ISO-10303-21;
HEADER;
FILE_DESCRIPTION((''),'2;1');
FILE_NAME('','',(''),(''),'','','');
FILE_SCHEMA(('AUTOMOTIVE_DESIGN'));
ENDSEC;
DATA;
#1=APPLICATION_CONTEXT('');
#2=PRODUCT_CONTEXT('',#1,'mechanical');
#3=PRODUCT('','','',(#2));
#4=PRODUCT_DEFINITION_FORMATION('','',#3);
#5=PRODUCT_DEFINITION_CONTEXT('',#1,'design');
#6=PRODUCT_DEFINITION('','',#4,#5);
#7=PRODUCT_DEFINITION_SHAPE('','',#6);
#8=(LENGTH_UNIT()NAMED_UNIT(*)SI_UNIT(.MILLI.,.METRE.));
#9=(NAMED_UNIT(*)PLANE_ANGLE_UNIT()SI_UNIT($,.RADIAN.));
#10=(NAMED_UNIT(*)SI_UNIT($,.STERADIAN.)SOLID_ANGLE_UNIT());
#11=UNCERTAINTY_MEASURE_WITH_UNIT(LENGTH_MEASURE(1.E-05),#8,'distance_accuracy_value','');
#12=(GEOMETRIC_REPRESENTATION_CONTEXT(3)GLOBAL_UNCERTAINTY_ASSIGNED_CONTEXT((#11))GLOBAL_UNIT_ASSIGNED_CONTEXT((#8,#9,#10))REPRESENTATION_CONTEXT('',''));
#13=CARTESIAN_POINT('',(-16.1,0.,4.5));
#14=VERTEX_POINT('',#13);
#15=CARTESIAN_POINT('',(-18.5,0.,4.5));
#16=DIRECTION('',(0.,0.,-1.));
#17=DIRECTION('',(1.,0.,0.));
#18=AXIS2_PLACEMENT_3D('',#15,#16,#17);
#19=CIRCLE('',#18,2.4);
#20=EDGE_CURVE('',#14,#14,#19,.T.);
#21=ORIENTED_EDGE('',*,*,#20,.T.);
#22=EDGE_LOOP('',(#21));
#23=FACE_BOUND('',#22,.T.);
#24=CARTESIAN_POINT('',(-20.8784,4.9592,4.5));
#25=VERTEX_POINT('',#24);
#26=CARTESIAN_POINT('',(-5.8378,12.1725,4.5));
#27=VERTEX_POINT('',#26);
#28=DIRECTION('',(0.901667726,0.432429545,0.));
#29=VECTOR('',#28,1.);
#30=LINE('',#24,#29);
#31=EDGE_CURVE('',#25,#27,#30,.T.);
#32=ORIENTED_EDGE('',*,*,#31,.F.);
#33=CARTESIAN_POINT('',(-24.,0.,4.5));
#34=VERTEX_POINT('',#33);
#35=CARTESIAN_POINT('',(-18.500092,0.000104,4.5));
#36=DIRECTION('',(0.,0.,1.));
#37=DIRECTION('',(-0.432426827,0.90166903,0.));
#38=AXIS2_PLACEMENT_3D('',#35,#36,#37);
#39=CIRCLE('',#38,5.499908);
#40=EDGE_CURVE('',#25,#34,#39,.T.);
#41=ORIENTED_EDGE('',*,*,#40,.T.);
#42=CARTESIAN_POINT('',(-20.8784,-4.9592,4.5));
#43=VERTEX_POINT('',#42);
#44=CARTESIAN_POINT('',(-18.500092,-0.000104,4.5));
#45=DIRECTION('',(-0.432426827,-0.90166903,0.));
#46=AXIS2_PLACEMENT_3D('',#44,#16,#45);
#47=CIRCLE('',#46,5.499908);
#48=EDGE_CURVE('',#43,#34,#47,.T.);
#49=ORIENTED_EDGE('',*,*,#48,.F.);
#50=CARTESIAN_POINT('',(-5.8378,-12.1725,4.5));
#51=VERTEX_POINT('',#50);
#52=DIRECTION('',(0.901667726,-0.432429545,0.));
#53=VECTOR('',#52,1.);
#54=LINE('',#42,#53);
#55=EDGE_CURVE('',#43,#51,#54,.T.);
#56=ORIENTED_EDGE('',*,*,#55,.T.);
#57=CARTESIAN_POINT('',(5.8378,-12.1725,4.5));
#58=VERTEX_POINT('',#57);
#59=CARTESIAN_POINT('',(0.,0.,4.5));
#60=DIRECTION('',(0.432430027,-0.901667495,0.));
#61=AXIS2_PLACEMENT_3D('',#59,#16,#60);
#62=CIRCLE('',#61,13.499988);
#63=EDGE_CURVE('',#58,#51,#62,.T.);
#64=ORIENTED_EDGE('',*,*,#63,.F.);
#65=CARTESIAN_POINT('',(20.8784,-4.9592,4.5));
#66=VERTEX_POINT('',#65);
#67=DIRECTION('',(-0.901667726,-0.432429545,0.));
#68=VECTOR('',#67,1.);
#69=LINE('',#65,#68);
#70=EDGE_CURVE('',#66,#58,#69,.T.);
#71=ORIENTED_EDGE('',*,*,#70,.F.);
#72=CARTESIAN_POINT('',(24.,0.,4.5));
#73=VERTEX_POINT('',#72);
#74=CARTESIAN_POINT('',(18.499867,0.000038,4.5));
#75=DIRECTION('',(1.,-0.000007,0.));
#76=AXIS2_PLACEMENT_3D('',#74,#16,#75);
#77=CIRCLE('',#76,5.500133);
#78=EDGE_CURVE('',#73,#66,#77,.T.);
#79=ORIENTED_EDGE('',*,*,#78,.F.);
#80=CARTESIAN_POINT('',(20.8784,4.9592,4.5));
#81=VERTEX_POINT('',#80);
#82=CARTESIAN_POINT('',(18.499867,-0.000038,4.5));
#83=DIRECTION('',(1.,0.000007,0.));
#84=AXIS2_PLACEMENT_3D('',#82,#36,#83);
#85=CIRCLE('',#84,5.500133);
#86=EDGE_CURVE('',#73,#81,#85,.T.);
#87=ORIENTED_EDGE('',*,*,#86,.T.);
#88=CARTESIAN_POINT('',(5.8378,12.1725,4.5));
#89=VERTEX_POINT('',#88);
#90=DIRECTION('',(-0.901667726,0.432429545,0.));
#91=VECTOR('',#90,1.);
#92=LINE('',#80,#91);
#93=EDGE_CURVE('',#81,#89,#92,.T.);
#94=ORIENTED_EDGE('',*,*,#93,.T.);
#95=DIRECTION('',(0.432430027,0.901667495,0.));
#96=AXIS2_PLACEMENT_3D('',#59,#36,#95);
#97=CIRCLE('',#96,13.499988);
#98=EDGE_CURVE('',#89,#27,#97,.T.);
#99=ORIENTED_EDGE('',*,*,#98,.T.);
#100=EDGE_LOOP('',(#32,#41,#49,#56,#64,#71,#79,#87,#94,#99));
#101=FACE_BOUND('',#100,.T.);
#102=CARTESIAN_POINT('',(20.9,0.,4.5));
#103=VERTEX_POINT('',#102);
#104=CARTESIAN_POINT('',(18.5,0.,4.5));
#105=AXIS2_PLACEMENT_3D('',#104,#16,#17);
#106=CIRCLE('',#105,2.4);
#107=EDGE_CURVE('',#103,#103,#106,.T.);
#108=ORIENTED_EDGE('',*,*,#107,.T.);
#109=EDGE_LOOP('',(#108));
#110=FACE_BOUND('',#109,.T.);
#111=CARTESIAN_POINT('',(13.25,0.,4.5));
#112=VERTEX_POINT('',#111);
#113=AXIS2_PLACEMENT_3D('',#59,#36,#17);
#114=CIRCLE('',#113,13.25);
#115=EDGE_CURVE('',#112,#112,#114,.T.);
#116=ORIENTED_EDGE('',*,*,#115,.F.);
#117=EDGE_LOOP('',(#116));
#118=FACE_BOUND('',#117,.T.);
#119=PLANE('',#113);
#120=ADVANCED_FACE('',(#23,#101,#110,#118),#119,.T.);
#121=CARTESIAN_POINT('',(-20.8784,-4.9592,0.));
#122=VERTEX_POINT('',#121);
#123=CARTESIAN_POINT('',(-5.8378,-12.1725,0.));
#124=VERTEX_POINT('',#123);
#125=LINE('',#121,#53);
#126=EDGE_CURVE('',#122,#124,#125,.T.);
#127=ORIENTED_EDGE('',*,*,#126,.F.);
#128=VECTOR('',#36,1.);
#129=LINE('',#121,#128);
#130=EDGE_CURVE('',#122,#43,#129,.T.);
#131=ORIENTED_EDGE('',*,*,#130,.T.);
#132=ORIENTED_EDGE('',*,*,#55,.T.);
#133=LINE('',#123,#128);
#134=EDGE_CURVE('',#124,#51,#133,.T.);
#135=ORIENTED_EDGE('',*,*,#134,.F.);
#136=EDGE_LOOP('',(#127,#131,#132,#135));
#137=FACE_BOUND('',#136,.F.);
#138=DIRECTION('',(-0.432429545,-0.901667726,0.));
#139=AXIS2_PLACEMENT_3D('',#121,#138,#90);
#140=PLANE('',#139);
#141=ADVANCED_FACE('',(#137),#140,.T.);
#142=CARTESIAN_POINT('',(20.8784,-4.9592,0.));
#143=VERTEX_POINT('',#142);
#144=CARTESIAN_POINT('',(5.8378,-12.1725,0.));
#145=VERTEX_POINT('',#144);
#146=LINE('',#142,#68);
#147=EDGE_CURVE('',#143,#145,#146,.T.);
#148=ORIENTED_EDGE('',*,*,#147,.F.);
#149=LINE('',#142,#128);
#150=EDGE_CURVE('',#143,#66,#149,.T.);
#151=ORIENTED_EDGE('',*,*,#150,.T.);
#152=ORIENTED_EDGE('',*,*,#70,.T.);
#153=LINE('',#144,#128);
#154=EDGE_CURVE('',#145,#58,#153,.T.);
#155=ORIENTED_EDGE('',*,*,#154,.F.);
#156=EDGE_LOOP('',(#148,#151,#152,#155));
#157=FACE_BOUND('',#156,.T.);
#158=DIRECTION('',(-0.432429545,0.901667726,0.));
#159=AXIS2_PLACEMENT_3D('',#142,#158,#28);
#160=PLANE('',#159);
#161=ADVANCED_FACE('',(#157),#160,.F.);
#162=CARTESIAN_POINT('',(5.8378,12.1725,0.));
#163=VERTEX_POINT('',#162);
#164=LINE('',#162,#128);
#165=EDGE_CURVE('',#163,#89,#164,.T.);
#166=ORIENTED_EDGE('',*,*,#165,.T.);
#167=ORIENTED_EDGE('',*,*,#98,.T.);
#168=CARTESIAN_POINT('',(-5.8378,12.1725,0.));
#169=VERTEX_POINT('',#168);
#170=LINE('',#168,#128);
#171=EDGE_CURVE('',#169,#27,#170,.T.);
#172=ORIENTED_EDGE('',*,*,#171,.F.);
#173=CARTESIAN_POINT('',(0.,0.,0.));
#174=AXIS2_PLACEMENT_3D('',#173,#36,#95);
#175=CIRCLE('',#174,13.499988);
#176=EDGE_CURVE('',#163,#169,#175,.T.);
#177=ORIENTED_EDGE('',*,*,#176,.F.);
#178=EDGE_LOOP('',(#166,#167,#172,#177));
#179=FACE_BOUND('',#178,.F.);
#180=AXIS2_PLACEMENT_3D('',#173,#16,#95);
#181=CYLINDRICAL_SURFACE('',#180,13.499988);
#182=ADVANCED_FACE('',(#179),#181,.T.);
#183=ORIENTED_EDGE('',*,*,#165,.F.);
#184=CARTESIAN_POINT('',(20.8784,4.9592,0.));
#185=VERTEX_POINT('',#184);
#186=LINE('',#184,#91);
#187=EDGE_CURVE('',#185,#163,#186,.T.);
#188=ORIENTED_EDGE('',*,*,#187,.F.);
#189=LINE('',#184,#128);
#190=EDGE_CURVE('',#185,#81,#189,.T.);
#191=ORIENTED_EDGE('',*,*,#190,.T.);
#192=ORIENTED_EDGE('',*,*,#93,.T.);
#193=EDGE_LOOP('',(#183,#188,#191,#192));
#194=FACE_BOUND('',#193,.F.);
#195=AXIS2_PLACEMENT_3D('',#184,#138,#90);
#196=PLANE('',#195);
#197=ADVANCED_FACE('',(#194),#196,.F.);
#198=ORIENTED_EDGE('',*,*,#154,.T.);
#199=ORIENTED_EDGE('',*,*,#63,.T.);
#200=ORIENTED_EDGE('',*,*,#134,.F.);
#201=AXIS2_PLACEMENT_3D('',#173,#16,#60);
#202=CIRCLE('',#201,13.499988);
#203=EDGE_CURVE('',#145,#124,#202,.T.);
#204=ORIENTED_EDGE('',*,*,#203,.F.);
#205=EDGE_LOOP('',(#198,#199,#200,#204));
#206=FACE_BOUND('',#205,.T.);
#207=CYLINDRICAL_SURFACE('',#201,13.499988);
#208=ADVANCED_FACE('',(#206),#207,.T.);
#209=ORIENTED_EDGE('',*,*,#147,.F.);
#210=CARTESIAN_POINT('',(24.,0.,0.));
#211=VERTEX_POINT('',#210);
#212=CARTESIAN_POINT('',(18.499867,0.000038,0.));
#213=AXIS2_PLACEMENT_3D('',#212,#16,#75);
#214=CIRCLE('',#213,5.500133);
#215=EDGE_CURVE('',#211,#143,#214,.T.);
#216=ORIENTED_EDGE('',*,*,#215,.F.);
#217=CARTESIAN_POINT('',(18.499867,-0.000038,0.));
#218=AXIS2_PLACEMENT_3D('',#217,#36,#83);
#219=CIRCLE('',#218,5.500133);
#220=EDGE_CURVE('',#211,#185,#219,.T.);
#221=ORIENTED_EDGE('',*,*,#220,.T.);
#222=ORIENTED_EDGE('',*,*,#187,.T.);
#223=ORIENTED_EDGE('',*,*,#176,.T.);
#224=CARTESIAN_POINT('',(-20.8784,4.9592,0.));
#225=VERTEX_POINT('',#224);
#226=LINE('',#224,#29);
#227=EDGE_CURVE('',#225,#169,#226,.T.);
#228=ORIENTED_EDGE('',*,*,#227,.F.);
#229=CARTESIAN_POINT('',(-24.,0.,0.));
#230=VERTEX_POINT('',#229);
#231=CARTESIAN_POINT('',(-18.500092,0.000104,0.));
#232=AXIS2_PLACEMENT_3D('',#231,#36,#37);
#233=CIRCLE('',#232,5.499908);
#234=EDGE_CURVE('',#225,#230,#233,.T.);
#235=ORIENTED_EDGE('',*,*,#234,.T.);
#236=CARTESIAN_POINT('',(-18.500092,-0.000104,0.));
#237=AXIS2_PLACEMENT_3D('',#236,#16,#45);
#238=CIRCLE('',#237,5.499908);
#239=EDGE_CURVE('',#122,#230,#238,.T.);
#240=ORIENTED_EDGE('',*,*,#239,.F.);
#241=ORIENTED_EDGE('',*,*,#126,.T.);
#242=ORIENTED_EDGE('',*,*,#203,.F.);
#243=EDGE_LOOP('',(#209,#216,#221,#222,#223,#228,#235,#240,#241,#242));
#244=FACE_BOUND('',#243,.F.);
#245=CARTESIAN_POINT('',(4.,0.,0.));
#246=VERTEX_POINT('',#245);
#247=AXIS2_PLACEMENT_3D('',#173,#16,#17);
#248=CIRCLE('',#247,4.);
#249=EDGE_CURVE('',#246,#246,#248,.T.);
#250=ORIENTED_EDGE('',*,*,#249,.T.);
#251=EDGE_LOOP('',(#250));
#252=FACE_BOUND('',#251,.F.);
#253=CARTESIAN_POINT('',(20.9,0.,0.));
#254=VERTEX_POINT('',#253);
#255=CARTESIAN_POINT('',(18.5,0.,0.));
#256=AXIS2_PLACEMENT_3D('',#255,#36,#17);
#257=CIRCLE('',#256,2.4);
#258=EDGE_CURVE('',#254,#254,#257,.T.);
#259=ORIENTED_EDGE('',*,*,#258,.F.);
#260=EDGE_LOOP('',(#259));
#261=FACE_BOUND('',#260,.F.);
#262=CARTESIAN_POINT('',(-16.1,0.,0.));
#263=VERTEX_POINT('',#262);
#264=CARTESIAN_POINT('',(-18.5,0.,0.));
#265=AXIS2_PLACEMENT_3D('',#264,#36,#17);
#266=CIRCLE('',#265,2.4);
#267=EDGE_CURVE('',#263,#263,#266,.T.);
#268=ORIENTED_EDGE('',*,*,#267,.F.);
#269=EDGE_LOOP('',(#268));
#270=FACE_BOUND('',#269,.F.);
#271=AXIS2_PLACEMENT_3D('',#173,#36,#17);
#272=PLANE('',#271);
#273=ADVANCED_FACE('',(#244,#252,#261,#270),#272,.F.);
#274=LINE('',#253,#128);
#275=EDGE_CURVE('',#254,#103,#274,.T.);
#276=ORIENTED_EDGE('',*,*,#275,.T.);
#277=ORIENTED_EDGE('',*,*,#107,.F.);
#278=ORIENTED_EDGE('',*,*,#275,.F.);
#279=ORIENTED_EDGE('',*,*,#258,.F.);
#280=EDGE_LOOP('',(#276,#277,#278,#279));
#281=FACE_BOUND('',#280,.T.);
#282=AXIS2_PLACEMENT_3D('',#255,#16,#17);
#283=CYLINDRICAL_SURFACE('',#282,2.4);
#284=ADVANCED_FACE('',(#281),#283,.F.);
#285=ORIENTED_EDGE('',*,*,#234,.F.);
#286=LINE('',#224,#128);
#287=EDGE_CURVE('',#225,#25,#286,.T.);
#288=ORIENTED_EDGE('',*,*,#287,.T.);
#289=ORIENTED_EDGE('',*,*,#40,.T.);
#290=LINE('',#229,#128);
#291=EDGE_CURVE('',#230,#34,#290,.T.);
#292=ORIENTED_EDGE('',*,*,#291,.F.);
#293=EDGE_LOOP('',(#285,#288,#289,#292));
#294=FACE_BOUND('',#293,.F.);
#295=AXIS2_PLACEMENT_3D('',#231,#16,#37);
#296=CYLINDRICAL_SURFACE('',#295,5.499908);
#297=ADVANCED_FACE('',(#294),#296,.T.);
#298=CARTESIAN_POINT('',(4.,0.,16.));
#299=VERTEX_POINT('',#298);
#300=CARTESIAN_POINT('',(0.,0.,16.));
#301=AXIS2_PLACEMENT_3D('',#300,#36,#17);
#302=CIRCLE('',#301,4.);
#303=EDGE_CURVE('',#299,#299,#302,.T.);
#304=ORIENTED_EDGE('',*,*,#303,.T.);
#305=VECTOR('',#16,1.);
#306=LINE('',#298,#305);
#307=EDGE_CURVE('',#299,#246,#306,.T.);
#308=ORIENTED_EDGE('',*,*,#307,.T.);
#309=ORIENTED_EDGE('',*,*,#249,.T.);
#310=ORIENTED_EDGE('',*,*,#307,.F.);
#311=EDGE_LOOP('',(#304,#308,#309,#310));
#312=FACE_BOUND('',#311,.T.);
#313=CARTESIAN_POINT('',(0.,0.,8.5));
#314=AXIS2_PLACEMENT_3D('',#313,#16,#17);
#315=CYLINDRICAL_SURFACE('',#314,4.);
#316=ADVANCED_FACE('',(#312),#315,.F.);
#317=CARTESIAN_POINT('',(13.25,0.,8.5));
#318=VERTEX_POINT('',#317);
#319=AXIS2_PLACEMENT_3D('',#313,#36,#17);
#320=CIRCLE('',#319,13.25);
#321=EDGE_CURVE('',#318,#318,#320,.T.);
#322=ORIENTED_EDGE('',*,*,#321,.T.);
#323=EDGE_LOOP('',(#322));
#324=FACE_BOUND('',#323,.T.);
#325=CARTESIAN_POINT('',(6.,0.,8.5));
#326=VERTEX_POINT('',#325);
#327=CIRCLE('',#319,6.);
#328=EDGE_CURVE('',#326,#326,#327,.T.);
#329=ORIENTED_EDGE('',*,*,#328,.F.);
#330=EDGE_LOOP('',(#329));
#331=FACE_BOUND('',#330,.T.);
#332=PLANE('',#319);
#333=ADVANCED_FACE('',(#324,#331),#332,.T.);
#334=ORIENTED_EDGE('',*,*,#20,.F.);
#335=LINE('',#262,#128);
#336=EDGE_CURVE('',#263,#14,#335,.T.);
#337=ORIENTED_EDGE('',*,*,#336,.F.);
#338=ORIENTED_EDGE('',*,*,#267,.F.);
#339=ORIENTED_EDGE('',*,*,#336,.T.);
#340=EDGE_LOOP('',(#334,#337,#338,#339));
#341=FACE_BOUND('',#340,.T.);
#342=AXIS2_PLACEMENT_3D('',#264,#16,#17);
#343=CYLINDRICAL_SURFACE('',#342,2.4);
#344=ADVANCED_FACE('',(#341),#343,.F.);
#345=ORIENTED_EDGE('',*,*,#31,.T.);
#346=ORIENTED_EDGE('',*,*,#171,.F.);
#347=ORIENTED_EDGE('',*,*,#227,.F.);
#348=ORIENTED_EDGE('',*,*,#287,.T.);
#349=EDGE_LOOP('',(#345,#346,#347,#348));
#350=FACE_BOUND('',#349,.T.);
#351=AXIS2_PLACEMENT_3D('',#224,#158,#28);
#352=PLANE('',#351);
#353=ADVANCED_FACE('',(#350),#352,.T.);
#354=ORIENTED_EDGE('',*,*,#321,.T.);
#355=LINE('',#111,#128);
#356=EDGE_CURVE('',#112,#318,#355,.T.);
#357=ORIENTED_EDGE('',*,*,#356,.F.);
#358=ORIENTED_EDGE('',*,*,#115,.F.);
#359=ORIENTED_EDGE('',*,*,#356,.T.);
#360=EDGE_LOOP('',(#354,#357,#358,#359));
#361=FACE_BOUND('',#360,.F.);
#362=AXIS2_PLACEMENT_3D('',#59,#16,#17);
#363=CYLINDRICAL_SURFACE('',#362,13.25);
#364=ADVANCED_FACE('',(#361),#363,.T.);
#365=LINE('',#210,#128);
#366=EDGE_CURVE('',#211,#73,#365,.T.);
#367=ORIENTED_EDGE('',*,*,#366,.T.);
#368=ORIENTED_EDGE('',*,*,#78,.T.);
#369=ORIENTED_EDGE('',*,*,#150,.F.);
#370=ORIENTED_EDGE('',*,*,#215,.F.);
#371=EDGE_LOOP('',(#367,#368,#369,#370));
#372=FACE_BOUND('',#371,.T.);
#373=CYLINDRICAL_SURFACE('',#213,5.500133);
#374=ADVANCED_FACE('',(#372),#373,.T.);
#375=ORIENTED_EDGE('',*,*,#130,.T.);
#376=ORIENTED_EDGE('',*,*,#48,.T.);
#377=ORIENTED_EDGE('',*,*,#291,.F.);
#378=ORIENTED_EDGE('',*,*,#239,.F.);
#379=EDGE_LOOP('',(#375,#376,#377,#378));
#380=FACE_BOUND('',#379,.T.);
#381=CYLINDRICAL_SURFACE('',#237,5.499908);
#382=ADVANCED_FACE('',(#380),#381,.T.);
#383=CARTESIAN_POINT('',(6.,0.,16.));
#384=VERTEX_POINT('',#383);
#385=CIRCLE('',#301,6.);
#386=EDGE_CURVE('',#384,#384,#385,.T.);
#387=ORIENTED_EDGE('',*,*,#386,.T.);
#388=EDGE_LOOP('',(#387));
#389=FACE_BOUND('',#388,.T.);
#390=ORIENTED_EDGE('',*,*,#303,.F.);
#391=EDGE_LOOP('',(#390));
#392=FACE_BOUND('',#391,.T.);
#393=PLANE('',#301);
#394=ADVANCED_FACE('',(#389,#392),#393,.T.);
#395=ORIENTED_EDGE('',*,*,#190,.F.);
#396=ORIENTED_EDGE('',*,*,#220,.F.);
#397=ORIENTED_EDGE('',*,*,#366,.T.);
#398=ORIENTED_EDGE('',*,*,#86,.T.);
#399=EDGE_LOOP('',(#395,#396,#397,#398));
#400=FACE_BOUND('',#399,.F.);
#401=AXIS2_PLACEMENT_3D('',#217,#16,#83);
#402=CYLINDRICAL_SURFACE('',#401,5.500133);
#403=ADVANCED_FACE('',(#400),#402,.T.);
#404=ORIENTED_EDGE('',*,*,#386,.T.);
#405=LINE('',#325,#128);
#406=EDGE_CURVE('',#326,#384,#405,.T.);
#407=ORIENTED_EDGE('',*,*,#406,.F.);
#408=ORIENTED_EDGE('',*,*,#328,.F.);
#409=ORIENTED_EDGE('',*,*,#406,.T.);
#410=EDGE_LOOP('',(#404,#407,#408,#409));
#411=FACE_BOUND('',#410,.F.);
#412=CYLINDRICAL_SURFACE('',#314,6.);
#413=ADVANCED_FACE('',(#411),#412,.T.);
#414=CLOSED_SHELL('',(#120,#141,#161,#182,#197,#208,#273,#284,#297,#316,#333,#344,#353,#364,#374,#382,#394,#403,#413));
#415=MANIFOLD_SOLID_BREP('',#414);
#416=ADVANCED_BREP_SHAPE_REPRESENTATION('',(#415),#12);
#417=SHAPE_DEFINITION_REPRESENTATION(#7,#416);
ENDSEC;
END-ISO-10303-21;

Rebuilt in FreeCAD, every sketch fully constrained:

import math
import FreeCAD as App
import Part
import Sketcher

doc = App.newDocument("Part")
body = doc.addObject("PartDesign::Body", "Body")

# Sketch on XY plane
sketch1 = body.newObject("Sketcher::SketchObject", "Sketch")
sketch1.AttachmentSupport = (doc.getObject("XY_Plane"), [""])
sketch1.MapMode = "FlatFace"
sketch1.addGeometry(Part.ArcOfCircle(Part.Circle(App.Vector(0, 0, 0), App.Vector(0, 0, 1), 4), math.radians(0), math.radians(180)), False)
sketch1.addGeometry(Part.LineSegment(App.Vector(4, 0, 0), App.Vector(16.1, 0, 0)), False)
sketch1.addGeometry(Part.ArcOfCircle(Part.Circle(App.Vector(18.5, 0, 0), App.Vector(0, 0, 1), 2.4), math.radians(0), math.radians(180)), False)
sketch1.addGeometry(Part.LineSegment(App.Vector(20.9, 0, 0), App.Vector(24, 0, 0)), False)
sketch1.addGeometry(Part.ArcOfCircle(Part.Circle(App.Vector(18.5, 0, 0), App.Vector(0, 0, 1), 5.5), math.radians(0), math.radians(64)), False)
sketch1.addGeometry(Part.LineSegment(App.Vector(20.9, 5, 0), App.Vector(5.8, 12.2, 0)), False)
sketch1.addGeometry(Part.ArcOfCircle(Part.Circle(App.Vector(0, 0, 0), App.Vector(0, 0, 1), 13.5), math.radians(64), math.radians(116)), False)
sketch1.addGeometry(Part.LineSegment(App.Vector(-5.8, 12.2, 0), App.Vector(-20.9, 5, 0)), False)
sketch1.addGeometry(Part.ArcOfCircle(Part.Circle(App.Vector(-18.5, 0, 0), App.Vector(0, 0, 1), 5.5), math.radians(116), math.radians(180)), False)
sketch1.addGeometry(Part.LineSegment(App.Vector(-24, 0, 0), App.Vector(-20.9, 0, 0)), False)
sketch1.addGeometry(Part.ArcOfCircle(Part.Circle(App.Vector(-18.5, 0, 0), App.Vector(0, 0, 1), 2.4), math.radians(0), math.radians(180)), False)
sketch1.addGeometry(Part.LineSegment(App.Vector(-16.1, 0, 0), App.Vector(-4, 0, 0)), False)
sketch1.addConstraint(Sketcher.Constraint("Coincident", 0, 1, 1, 1))
sketch1.addConstraint(Sketcher.Constraint("Coincident", 1, 2, 2, 2))
sketch1.addConstraint(Sketcher.Constraint("Coincident", 2, 1, 3, 1))
sketch1.addConstraint(Sketcher.Constraint("Coincident", 3, 2, 4, 1))
sketch1.addConstraint(Sketcher.Constraint("Tangent", 4, 2, 5, 1))
sketch1.addConstraint(Sketcher.Constraint("Tangent", 5, 2, 6, 1))
sketch1.addConstraint(Sketcher.Constraint("Tangent", 6, 2, 7, 1))
sketch1.addConstraint(Sketcher.Constraint("Tangent", 7, 2, 8, 1))
sketch1.addConstraint(Sketcher.Constraint("Coincident", 8, 2, 9, 1))
sketch1.addConstraint(Sketcher.Constraint("Coincident", 9, 2, 10, 2))
sketch1.addConstraint(Sketcher.Constraint("Coincident", 10, 1, 11, 1))
sketch1.addConstraint(Sketcher.Constraint("Coincident", 11, 2, 0, 2))
sketch1.addConstraint(Sketcher.Constraint("Horizontal", 1))
sketch1.addConstraint(Sketcher.Constraint("Horizontal", 3))
sketch1.addConstraint(Sketcher.Constraint("Horizontal", 9))
sketch1.addConstraint(Sketcher.Constraint("Horizontal", 11))
sketch1.addConstraint(Sketcher.Constraint("Coincident", 0, 3, -1, 1))
sketch1.addConstraint(Sketcher.Constraint("Coincident", 6, 3, -1, 1))
sketch1.addConstraint(Sketcher.Constraint("Coincident", 4, 3, 2, 3))
sketch1.addConstraint(Sketcher.Constraint("Coincident", 10, 3, 8, 3))
sketch1.addConstraint(Sketcher.Constraint("Equal", 4, 8))
sketch1.addConstraint(Sketcher.Constraint("Equal", 2, 10))
sketch1.addConstraint(Sketcher.Constraint("Symmetric", 2, 3, 8, 3, -1, 1))
sketch1.addConstraint(Sketcher.Constraint("PointOnObject", 2, 3, -1))
sketch1.addConstraint(Sketcher.Constraint("PointOnObject", 0, 1, -1))
sketch1.addConstraint(Sketcher.Constraint("PointOnObject", 2, 1, -1))
sketch1.addConstraint(Sketcher.Constraint("PointOnObject", 8, 2, -1))
sketch1.addConstraint(Sketcher.Constraint("PointOnObject", 10, 1, -1))
sketch1.addConstraint(Sketcher.Constraint("Radius", 0, 4.0))
sketch1.addConstraint(Sketcher.Constraint("Radius", 2, 2.4))
sketch1.addConstraint(Sketcher.Constraint("Radius", 4, 5.5))
sketch1.addConstraint(Sketcher.Constraint("Radius", 6, 13.5))
sketch1.addConstraint(Sketcher.Constraint("DistanceX", 8, 3, 2, 3, 37.0))
pad1 = body.newObject("PartDesign::Pad", "Pad")
pad1.Profile = sketch1
pad1.Length = 4.5
doc.recompute()

mirrored = body.newObject("PartDesign::Mirrored", "Mirrored")
mirrored.Originals = [pad1]
mirrored.MirrorPlane = (doc.getObject("XZ_Plane"), [""])
body.Tip = mirrored

# Sketch on XY plane
sketch2 = body.newObject("Sketcher::SketchObject", "Sketch001")
sketch2.AttachmentSupport = (doc.getObject("XY_Plane"), [""])
sketch2.MapMode = "FlatFace"
sketch2.AttachmentOffset = App.Placement(App.Vector(0, 0, 4.5), App.Rotation())
sketch2.addGeometry(Part.Circle(App.Vector(0, 0, 0), App.Vector(0, 0, 1), 13.2), False)
sketch2.addGeometry(Part.Circle(App.Vector(0, 0, 0), App.Vector(0, 0, 1), 4), False)
sketch2.addConstraint(Sketcher.Constraint("Coincident", 0, 3, -1, 1))
sketch2.addConstraint(Sketcher.Constraint("Coincident", 1, 3, -1, 1))
sketch2.addConstraint(Sketcher.Constraint("Diameter", 1, 8.0))
sketch2.addConstraint(Sketcher.Constraint("Diameter", 0, 26.5))
pad2 = body.newObject("PartDesign::Pad", "Pad001")
pad2.Profile = sketch2
pad2.Length = 4

# Sketch on XY plane
sketch3 = body.newObject("Sketcher::SketchObject", "Sketch002")
sketch3.AttachmentSupport = (doc.getObject("XY_Plane"), [""])
sketch3.MapMode = "FlatFace"
sketch3.AttachmentOffset = App.Placement(App.Vector(0, 0, 8.5), App.Rotation())
sketch3.addGeometry(Part.Circle(App.Vector(0, 0, 0), App.Vector(0, 0, 1), 6), False)
sketch3.addGeometry(Part.Circle(App.Vector(0, 0, 0), App.Vector(0, 0, 1), 4), False)
sketch3.addConstraint(Sketcher.Constraint("Coincident", 0, 3, -1, 1))
sketch3.addConstraint(Sketcher.Constraint("Coincident", 1, 3, -1, 1))
sketch3.addConstraint(Sketcher.Constraint("Diameter", 0, 12.0))
sketch3.addConstraint(Sketcher.Constraint("Diameter", 1, 8.0))
pad3 = body.newObject("PartDesign::Pad", "Pad002")
pad3.Profile = sketch3
pad3.Length = 7.5

doc.recompute()
